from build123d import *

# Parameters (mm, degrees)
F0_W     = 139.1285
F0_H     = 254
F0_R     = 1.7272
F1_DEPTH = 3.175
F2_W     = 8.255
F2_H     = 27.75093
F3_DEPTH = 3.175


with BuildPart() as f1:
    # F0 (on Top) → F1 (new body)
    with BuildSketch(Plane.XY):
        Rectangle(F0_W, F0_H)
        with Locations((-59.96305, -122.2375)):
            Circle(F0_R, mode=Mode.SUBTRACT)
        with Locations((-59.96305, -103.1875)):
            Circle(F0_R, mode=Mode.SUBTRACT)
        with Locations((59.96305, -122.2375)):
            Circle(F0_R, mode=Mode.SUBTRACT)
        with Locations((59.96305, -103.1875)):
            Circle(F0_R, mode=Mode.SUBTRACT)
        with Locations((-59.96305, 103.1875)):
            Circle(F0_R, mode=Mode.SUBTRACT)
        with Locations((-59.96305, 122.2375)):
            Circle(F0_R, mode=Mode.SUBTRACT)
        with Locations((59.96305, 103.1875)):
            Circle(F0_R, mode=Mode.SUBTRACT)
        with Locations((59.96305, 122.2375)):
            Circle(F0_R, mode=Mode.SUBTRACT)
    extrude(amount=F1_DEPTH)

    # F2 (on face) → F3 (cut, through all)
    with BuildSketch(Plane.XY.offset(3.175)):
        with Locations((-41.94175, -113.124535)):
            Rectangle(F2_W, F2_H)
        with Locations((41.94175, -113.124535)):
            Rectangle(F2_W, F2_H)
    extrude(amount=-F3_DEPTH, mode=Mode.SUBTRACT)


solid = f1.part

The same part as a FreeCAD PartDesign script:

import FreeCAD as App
import Part
import Sketcher

V = App.Vector
Q = App.Units.Quantity


def add_polygon(sketch, points):
    """Adds a closed chain of lines whose ends are joined by coincident constraints."""
    first, n = sketch.GeometryCount, len(points)
    for a, b in zip(points, points[1:] + points[:1]):
        sketch.addGeometry(Part.LineSegment(App.Vector(*a, 0), App.Vector(*b, 0)), False)
    for i in range(n):
        sketch.addConstraint(Sketcher.Constraint("Coincident", first + i, 2, first + (i + 1) % n, 1))

doc = App.newDocument("Part")
body = doc.addObject("PartDesign::Body", "Body")

# Sketch on XY plane
sketch1 = doc.addObject("Sketcher::SketchObject", "Sketch")
body.addObject(sketch1)
sketch1.AttachmentSupport = (doc.XY_Plane, [""])
sketch1.MapMode = "FlatFace"
add_polygon(sketch1, [(-69.6, 127), (-69.6, -127), (69.6, -127), (69.6, 127)])  # lines 0-3
sketch1.addGeometry(Part.Circle(V(-60, -122.2, 0), V(0, 0, 1), 1.7), False)  # 4
sketch1.addGeometry(Part.Circle(V(-60, -103.2, 0), V(0, 0, 1), 1.7), False)  # 5
sketch1.addGeometry(Part.Circle(V(60, -122.2, 0), V(0, 0, 1), 1.7), False)  # 6
sketch1.addGeometry(Part.Circle(V(60, -103.2, 0), V(0, 0, 1), 1.7), False)  # 7
sketch1.addGeometry(Part.Circle(V(-60, 103.2, 0), V(0, 0, 1), 1.7), False)  # 8
sketch1.addGeometry(Part.Circle(V(-60, 122.2, 0), V(0, 0, 1), 1.7), False)  # 9
sketch1.addGeometry(Part.Circle(V(60, 103.2, 0), V(0, 0, 1), 1.7), False)  # 10
sketch1.addGeometry(Part.Circle(V(60, 122.2, 0), V(0, 0, 1), 1.7), False)  # 11
sketch1.addConstraint([
    Sketcher.Constraint("Vertical", 0),
    Sketcher.Constraint("Horizontal", 1),
    Sketcher.Constraint("Vertical", 2),
    Sketcher.Constraint("Horizontal", 3),
    Sketcher.Constraint("Equal", 4, 5),
    Sketcher.Constraint("Equal", 5, 6),
    Sketcher.Constraint("Equal", 6, 7),
    Sketcher.Constraint("Equal", 7, 8),
    Sketcher.Constraint("Equal", 8, 9),
    Sketcher.Constraint("Equal", 9, 10),
    Sketcher.Constraint("Equal", 10, 11),
    Sketcher.Constraint("Symmetric", 7, 3, 8, 3, -1, 1),
    Sketcher.Constraint("Symmetric", 6, 3, 9, 3, -1, 1),
    Sketcher.Constraint("Symmetric", 5, 3, 10, 3, -1, 1),
    Sketcher.Constraint("Symmetric", 4, 3, 11, 3, -1, 1),
    Sketcher.Constraint("Symmetric", 0, 2, 2, 2, -1, 1),
    Sketcher.Constraint("Symmetric", 4, 3, 6, 3, -2),
    Sketcher.Constraint("Symmetric", 5, 3, 7, 3, -2),
    Sketcher.Constraint("Vertical", 4, 3, 5, 3),
    Sketcher.Constraint("DistanceY", 0, 2, 0, 1, Q("10 in")),
    Sketcher.Constraint("Diameter", 4, Q("0.136 in")),
    Sketcher.Constraint("DistanceY", 4, 3, 5, 3, Q("0.75 in")),
    Sketcher.Constraint("DistanceX", 1, 1, 1, 2, Q("5.4775 in")),
    Sketcher.Constraint("DistanceY", 4, 3, -1, 1, Q("4.8125 in")),
    Sketcher.Constraint("DistanceX", 0, 2, 4, 3, Q("0.378 in")),
])
pad1 = doc.addObject("PartDesign::Pad", "Pad")
body.addObject(pad1)
pad1.Profile = sketch1
pad1.Length = Q("0.125 in")

# Sketch on XY plane
sketch2 = doc.addObject("Sketcher::SketchObject", "Sketch001")
body.addObject(sketch2)
sketch2.AttachmentSupport = (doc.XY_Plane, [""])
sketch2.MapMode = "FlatFace"
sketch2.AttachmentOffset = App.Placement(V(0, 0, 0.125 * 25.4), App.Rotation())
add_polygon(sketch2, [(-46, -99), (-46, -127), (-38, -127), (-38, -99)])  # lines 0-3
add_polygon(sketch2, [(38, -99), (38, -127), (46, -127), (46, -99)])  # lines 4-7
sketch2.addConstraint([
    Sketcher.Constraint("Vertical", 0),
    Sketcher.Constraint("Horizontal", 1),
    Sketcher.Constraint("Vertical", 2),
    Sketcher.Constraint("Horizontal", 3),
    Sketcher.Constraint("Vertical", 4),
    Sketcher.Constraint("Horizontal", 5),
    Sketcher.Constraint("Vertical", 6),
    Sketcher.Constraint("Horizontal", 7),
    Sketcher.Constraint("Symmetric", 1, 2, 4, 2, -2),
    Sketcher.Constraint("Symmetric", 3, 2, 6, 2, -2),
    Sketcher.Constraint("DistanceY", 0, 2, -1, 1, Q("5 in")),
    Sketcher.Constraint("DistanceX", 1, 1, 1, 2, Q("0.325 in")),
    Sketcher.Constraint("DistanceX", 1, 2, 4, 2, Q("2.9775 in")),
    Sketcher.Constraint("DistanceY", 0, 2, 0, 1, 27.75093),
])
pocket1 = doc.addObject("PartDesign::Pocket", "Pocket")
body.addObject(pocket1)
pocket1.Profile = sketch2
pocket1.Type = "ThroughAll"

doc.recompute()
